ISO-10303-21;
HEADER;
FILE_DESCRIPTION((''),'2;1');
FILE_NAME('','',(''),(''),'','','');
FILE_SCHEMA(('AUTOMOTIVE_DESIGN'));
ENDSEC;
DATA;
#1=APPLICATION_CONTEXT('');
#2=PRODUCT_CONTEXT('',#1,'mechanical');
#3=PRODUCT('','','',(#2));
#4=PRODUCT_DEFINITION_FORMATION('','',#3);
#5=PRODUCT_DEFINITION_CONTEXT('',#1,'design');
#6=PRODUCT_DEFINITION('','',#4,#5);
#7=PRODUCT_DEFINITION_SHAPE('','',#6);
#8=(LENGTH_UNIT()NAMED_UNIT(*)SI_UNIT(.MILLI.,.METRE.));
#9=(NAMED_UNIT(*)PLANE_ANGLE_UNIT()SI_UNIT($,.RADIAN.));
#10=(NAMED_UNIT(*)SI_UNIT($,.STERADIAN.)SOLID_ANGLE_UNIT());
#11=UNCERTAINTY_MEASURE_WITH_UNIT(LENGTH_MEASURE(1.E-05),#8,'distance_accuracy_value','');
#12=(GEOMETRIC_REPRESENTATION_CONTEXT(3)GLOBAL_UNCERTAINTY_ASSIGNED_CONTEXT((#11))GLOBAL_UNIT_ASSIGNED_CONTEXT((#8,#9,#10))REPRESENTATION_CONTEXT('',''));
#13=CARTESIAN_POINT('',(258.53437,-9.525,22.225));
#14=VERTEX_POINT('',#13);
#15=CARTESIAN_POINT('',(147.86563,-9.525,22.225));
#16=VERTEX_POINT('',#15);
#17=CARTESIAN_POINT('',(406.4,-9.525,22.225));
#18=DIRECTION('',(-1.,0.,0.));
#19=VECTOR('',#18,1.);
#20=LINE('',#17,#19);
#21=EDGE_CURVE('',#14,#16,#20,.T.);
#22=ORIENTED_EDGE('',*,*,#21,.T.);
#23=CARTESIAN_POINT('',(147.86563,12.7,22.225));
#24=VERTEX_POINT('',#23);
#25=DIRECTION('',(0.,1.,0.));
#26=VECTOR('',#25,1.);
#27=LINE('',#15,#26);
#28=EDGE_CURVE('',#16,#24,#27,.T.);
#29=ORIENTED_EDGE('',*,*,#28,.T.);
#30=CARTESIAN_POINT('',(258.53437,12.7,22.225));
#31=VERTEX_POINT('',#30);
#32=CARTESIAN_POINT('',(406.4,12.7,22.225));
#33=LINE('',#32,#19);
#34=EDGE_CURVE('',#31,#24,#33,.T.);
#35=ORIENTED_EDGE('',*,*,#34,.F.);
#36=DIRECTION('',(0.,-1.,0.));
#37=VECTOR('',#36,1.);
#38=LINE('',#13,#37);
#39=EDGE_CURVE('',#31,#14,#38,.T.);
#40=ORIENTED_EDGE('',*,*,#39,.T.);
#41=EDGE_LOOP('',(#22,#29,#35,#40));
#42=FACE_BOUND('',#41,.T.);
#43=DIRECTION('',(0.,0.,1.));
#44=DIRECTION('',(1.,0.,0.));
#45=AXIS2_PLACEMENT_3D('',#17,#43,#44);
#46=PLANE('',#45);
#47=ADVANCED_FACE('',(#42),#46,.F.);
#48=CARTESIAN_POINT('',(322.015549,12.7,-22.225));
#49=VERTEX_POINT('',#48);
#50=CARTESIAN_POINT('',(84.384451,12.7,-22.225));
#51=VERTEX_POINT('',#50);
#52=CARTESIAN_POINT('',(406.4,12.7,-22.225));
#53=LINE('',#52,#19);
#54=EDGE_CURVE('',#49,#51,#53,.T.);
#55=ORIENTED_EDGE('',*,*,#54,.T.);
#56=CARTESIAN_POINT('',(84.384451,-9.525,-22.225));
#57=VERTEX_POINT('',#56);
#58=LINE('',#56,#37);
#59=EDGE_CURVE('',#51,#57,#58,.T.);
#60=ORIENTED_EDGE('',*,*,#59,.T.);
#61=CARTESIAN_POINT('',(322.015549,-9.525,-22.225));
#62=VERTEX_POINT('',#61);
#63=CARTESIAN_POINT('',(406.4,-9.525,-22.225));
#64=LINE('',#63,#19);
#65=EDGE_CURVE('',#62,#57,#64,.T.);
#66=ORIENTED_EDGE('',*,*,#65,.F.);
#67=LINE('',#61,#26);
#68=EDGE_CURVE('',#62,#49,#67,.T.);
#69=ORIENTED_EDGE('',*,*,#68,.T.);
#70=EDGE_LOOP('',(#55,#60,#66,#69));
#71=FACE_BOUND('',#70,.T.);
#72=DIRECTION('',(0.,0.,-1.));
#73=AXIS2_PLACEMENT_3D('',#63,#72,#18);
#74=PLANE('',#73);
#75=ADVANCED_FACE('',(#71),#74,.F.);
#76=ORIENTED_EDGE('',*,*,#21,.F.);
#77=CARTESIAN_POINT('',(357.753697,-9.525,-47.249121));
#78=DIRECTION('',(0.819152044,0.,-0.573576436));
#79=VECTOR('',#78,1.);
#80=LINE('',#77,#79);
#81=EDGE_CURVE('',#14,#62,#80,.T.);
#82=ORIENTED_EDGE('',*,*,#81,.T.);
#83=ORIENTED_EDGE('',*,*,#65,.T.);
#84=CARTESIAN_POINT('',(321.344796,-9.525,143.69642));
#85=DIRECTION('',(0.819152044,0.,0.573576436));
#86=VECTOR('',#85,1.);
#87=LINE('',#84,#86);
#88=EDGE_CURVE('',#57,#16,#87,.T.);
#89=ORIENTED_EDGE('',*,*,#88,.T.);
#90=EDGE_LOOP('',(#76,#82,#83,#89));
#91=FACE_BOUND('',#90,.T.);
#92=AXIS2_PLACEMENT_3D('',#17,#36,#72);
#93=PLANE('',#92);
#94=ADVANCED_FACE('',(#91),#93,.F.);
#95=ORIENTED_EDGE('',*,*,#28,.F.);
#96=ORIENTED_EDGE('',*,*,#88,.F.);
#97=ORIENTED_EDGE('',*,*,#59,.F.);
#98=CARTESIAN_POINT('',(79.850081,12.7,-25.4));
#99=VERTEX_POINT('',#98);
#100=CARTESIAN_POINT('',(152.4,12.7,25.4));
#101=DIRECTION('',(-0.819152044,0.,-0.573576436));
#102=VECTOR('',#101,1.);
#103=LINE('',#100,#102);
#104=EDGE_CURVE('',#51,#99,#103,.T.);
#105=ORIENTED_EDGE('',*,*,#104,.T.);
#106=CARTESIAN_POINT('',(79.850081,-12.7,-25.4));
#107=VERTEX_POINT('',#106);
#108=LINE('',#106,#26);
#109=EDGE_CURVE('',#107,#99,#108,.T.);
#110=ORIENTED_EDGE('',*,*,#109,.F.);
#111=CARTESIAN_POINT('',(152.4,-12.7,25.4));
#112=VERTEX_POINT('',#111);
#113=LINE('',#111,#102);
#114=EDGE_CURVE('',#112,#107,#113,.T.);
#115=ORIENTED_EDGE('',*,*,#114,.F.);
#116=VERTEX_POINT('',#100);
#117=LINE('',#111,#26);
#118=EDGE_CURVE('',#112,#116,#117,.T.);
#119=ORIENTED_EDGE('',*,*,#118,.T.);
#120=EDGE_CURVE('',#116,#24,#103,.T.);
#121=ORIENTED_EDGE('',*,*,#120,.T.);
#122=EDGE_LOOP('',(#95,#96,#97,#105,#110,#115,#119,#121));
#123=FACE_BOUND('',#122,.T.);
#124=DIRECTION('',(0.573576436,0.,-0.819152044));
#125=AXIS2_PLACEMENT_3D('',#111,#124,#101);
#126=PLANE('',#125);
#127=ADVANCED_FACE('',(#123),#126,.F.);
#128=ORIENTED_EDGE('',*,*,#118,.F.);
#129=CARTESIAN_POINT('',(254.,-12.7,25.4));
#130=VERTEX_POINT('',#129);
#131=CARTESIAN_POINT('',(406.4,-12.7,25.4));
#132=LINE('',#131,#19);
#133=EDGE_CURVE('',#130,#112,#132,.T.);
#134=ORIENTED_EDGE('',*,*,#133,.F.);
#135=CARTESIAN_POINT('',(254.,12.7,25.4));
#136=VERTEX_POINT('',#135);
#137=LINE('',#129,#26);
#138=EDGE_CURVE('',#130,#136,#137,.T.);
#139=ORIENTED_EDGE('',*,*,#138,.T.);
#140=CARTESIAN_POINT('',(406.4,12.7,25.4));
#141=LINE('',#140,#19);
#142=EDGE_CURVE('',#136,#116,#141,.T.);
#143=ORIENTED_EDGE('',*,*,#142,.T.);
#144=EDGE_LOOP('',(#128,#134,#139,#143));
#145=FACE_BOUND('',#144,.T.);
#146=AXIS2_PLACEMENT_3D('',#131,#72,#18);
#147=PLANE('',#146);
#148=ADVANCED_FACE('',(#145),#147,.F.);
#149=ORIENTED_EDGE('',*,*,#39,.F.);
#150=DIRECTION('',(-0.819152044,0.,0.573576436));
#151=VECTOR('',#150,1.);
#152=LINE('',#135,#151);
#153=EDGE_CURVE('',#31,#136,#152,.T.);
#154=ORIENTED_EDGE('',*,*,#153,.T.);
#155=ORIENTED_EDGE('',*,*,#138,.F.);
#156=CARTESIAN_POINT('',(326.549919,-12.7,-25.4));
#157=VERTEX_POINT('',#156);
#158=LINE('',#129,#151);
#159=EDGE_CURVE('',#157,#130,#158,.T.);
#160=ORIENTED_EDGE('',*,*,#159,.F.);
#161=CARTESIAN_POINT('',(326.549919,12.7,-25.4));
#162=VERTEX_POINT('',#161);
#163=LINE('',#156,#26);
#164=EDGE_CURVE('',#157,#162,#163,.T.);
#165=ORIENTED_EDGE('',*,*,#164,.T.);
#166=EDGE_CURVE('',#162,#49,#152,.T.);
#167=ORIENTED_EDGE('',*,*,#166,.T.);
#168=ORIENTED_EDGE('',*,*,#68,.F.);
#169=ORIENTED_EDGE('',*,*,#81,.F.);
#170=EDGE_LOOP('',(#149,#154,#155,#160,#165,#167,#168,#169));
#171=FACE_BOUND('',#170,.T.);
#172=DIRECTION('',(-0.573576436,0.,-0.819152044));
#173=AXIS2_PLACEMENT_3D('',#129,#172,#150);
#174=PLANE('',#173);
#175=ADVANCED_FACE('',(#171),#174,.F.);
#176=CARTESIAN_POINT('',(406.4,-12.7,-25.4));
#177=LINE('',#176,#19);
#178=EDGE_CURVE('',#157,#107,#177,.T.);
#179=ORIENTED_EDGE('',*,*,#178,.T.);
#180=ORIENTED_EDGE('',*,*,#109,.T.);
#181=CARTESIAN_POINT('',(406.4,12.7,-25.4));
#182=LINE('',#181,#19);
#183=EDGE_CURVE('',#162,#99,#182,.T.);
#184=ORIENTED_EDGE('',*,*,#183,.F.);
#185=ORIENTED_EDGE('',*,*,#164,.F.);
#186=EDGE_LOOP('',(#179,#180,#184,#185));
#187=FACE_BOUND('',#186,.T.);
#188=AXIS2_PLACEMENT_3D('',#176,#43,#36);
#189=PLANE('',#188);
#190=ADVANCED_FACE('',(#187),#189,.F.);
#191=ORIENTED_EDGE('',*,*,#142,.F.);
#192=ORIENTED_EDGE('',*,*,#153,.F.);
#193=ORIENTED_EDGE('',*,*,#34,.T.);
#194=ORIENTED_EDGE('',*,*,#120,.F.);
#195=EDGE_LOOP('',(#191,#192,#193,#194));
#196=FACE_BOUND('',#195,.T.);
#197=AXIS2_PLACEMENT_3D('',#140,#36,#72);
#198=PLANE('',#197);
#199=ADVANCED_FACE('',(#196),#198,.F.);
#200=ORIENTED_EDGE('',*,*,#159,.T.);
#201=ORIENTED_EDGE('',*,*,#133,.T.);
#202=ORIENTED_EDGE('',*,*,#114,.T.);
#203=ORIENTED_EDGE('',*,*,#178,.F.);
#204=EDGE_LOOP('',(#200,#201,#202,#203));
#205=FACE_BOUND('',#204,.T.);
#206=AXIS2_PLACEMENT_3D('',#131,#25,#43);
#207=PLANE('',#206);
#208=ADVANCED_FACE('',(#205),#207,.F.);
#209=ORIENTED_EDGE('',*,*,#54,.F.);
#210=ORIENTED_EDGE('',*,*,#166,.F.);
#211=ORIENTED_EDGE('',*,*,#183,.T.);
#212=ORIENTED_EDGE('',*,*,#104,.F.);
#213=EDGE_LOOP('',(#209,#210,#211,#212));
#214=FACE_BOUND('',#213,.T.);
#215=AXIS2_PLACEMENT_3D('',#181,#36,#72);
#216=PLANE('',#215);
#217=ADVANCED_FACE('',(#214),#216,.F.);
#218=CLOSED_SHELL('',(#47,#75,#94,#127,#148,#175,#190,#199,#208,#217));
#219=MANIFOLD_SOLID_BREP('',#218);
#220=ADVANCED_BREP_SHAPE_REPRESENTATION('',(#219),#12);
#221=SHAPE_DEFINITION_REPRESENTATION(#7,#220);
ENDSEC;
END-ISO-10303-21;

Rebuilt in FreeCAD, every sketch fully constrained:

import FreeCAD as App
import Part
import Sketcher
from FreeCAD import Vector
Q = App.Units.Quantity

doc = App.newDocument("Part")
body = doc.addObject("PartDesign::Body", "Body")

# Sketch on YZ plane
sketch1 = doc.addObject("Sketcher::SketchObject", "Sketch")
body.addObject(sketch1)
sketch1.AttachmentSupport = (doc.YZ_Plane, [""])
sketch1.MapMode = "FlatFace"
sketch1.addGeometry(Part.LineSegment(Vector(-9.5, 22.2, 0), Vector(12.7, 22.2, 0)), False)
sketch1.addGeometry(Part.LineSegment(Vector(12.7, 22.2, 0), Vector(12.7, 25.4, 0)), False)
sketch1.addGeometry(Part.LineSegment(Vector(12.7, 25.4, 0), Vector(-12.7, 25.4, 0)), False)
sketch1.addGeometry(Part.LineSegment(Vector(-12.7, 25.4, 0), Vector(-12.7, -25.4, 0)), False)
sketch1.addGeometry(Part.LineSegment(Vector(-12.7, -25.4, 0), Vector(12.7, -25.4, 0)), False)
sketch1.addGeometry(Part.LineSegment(Vector(12.7, -25.4, 0), Vector(12.7, -22.2, 0)), False)
sketch1.addGeometry(Part.LineSegment(Vector(12.7, -22.2, 0), Vector(-9.5, -22.2, 0)), False)
sketch1.addGeometry(Part.LineSegment(Vector(-9.5, -22.2, 0), Vector(-9.5, 22.2, 0)), False)
sketch1.addConstraint(Sketcher.Constraint("Coincident", 0, 2, 1, 1))
sketch1.addConstraint(Sketcher.Constraint("Coincident", 1, 2, 2, 1))
sketch1.addConstraint(Sketcher.Constraint("Coincident", 2, 2, 3, 1))
sketch1.addConstraint(Sketcher.Constraint("Coincident", 3, 2, 4, 1))
sketch1.addConstraint(Sketcher.Constraint("Coincident", 4, 2, 5, 1))
sketch1.addConstraint(Sketcher.Constraint("Coincident", 5, 2, 6, 1))
sketch1.addConstraint(Sketcher.Constraint("Coincident", 6, 2, 7, 1))
sketch1.addConstraint(Sketcher.Constraint("Coincident", 7, 2, 0, 1))
sketch1.addConstraint(Sketcher.Constraint("Horizontal", 0))
sketch1.addConstraint(Sketcher.Constraint("Vertical", 1))
sketch1.addConstraint(Sketcher.Constraint("Horizontal", 2))
sketch1.addConstraint(Sketcher.Constraint("Vertical", 3))
sketch1.addConstraint(Sketcher.Constraint("Horizontal", 4))
sketch1.addConstraint(Sketcher.Constraint("Vertical", 5))
sketch1.addConstraint(Sketcher.Constraint("Horizontal", 6))
sketch1.addConstraint(Sketcher.Constraint("Vertical", 7))
sketch1.addConstraint(Sketcher.Constraint("Symmetric", 1, 2, 3, 2, -1, 1))
sketch1.addConstraint(Sketcher.Constraint("Symmetric", 0, 2, 5, 2, -1))
sketch1.addConstraint(Sketcher.Constraint("DistanceX", 2, 2, 2, 1, Q("1 in")))
sketch1.addConstraint(Sketcher.Constraint("DistanceY", 3, 2, 3, 1, Q("2 in")))
sketch1.addConstraint(Sketcher.Constraint("DistanceY", 7, 1, 7, 2, Q("1.75 in")))
sketch1.addConstraint(Sketcher.Constraint("DistanceX", 0, 1, 0, 2, Q("0.875 in")))
pad1 = doc.addObject("PartDesign::Pad", "Pad")
body.addObject(pad1)
pad1.Profile = sketch1
pad1.Length = Q("16 in")

# Sketch on XZ plane
sketch2 = doc.addObject("Sketcher::SketchObject", "Sketch001")
body.addObject(sketch2)
sketch2.AttachmentSupport = (doc.XZ_Plane, [""])
sketch2.MapMode = "FlatFace"
sketch2.AttachmentOffset = App.Placement(Vector(0, 0, -0.5 * 25.4), App.Rotation())
sketch2.addGeometry(Part.LineSegment(Vector(152, 25, 0), Vector(80, -25, 0)), False)
sketch2.addGeometry(Part.LineSegment(Vector(80, -25, 0), Vector(-62, -25, 0)), False)
sketch2.addGeometry(Part.LineSegment(Vector(-62, -25, 0), Vector(-62, 94, 0)), False)
sketch2.addGeometry(Part.LineSegment(Vector(-62, 94, 0), Vector(523, 141, 0)), False)
sketch2.addGeometry(Part.LineSegment(Vector(523, 141, 0), Vector(523, -25, 0)), False)
sketch2.addGeometry(Part.LineSegment(Vector(523, -25, 0), Vector(327, -25, 0)), False)
sketch2.addGeometry(Part.LineSegment(Vector(327, -25, 0), Vector(254, 25, 0)), False)
sketch2.addGeometry(Part.LineSegment(Vector(254, 25, 0), Vector(152, 25, 0)), False)
sketch2.addConstraint(Sketcher.Constraint("Coincident", 0, 2, 1, 1))
sketch2.addConstraint(Sketcher.Constraint("Coincident", 1, 2, 2, 1))
sketch2.addConstraint(Sketcher.Constraint("Coincident", 2, 2, 3, 1))
sketch2.addConstraint(Sketcher.Constraint("Coincident", 3, 2, 4, 1))
sketch2.addConstraint(Sketcher.Constraint("Coincident", 4, 2, 5, 1))
sketch2.addConstraint(Sketcher.Constraint("Coincident", 5, 2, 6, 1))
sketch2.addConstraint(Sketcher.Constraint("Coincident", 6, 2, 7, 1))
sketch2.addConstraint(Sketcher.Constraint("Coincident", 7, 2, 0, 1))
sketch2.addConstraint(Sketcher.Constraint("Horizontal", 1))
sketch2.addConstraint(Sketcher.Constraint("Vertical", 2))
sketch2.addConstraint(Sketcher.Constraint("Vertical", 4))
sketch2.addConstraint(Sketcher.Constraint("Horizontal", 5))
sketch2.addConstraint(Sketcher.Constraint("Horizontal", 7))
sketch2.addConstraint(Sketcher.Constraint("Horizontal", 1, 2, 4, 2))
sketch2.addConstraint(Sketcher.Constraint("Equal", 0, 6))
sketch2.addConstraint(Sketcher.Constraint("DistanceX", 7, 2, 7, 1, Q("4 in")))
sketch2.addConstraint(Sketcher.Constraint("DistanceY", 0, 2, -1, 1, Q("1 in")))
sketch2.addConstraint(Sketcher.Constraint("DistanceX", -1, 1, 6, 2, Q("10 in")))
sketch2.addConstraint(Sketcher.Constraint("DistanceY", -1, 1, 6, 2, Q("1 in")))
sketch2.addConstraint(Sketcher.Constraint("Angle", 0, Q("-145 deg")))
sketch2.addConstraint(Sketcher.Constraint("DistanceX", 5, 2, 5, 1, 196.823158))
sketch2.addConstraint(Sketcher.Constraint("DistanceY", 2, 1, 2, 2, 119.674139))
sketch2.addConstraint(Sketcher.Constraint("Distance", 3, 587.480851))
sketch2.addConstraint(Sketcher.Constraint("DistanceX", 1, 2, 1, 1, 142.060346))
pocket1 = doc.addObject("PartDesign::Pocket", "Pocket")
body.addObject(pocket1)
pocket1.Profile = sketch2
pocket1.Type = "ThroughAll"
pocket1.Reversed = True

doc.recompute()
